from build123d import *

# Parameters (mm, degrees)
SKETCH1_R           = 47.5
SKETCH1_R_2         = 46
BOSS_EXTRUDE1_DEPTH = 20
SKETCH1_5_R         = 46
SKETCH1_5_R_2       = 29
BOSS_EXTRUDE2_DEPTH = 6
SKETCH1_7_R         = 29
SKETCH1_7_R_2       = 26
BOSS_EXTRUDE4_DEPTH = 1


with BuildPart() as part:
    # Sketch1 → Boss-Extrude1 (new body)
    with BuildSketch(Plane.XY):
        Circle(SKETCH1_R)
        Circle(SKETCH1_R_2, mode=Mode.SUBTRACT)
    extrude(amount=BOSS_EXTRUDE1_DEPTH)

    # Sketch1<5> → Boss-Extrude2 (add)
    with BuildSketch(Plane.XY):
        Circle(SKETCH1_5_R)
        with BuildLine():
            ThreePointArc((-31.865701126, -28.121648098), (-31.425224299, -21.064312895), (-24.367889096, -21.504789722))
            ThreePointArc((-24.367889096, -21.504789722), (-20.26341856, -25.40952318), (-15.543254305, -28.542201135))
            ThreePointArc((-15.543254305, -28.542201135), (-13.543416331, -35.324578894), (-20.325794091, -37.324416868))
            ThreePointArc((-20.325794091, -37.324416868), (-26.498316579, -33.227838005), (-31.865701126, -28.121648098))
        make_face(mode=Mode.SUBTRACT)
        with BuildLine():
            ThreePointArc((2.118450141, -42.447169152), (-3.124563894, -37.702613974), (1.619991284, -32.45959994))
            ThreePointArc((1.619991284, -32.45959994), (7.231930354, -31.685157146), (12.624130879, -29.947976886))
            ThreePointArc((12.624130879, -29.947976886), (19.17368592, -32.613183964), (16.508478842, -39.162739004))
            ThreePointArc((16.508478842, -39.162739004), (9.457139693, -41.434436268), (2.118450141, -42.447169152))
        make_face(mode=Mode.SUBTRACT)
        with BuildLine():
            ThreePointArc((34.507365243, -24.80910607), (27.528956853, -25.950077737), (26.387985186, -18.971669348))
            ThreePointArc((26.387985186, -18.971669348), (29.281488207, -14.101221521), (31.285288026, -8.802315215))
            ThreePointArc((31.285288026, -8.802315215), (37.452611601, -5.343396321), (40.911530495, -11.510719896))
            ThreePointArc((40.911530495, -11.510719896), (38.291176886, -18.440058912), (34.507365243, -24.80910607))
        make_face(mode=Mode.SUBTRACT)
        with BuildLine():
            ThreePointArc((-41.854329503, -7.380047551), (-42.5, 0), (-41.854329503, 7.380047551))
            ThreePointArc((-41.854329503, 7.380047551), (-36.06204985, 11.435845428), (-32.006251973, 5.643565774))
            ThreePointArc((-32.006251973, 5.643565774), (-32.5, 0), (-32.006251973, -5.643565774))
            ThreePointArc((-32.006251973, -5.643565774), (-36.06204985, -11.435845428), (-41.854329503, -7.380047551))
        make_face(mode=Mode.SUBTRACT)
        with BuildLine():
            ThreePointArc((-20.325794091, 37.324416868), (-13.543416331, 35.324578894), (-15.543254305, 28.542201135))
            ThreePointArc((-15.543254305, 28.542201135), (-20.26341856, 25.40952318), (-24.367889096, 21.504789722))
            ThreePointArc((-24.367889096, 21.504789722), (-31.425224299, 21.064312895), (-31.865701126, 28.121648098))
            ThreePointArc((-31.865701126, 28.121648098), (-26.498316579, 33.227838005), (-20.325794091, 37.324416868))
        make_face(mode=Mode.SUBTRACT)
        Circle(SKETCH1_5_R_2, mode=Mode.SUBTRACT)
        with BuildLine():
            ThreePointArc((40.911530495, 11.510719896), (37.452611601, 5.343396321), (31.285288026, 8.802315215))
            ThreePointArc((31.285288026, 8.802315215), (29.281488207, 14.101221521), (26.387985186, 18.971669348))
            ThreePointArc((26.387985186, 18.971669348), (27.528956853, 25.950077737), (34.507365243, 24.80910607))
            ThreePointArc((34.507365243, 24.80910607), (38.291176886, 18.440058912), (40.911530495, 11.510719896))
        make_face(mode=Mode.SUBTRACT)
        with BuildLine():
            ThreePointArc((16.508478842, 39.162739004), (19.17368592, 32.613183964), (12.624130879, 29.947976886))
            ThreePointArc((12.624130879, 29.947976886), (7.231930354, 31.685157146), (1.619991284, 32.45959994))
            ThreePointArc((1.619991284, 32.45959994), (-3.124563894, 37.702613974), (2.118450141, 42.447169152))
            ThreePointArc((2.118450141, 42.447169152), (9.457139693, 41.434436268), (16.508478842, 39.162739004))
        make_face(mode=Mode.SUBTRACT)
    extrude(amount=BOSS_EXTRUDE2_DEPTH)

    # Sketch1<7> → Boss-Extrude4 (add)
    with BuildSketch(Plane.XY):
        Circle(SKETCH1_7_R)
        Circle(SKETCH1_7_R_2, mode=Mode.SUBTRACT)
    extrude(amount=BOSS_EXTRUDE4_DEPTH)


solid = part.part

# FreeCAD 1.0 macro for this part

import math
import FreeCAD as App
import Part
import Sketcher
from FreeCAD import Vector
Q = App.Units.Quantity

doc = App.newDocument("Part")
body = doc.addObject("PartDesign::Body", "Body")

sketch1 = body.newObject("Sketcher::SketchObject", "Sketch")
sketch1.AttachmentSupport = (doc.getObject("XY_Plane"), [""])
sketch1.MapMode = "FlatFace"
sketch1.addGeometry([
    Part.Circle(Vector(0, 0, 0), Vector(0, 0, 1), 47.5),
    Part.Circle(Vector(0, 0, 0), Vector(0, 0, 1), 46),
], False)
sketch1.addConstraint([
    Sketcher.Constraint("Coincident", 0, 3, -1, 1),
    Sketcher.Constraint("Coincident", 1, 3, -1, 1),
    Sketcher.Constraint("Diameter", 0, Q("95 mm")),
    Sketcher.Constraint("Diameter", 1, Q("92 mm")),
])
pad1 = body.newObject("PartDesign::Pad", "Pad")
pad1.Profile = sketch1
pad1.Length = 20

sketch2 = body.newObject("Sketcher::SketchObject", "Sketch001")
sketch2.AttachmentSupport = (doc.getObject("XY_Plane"), [""])
sketch2.MapMode = "FlatFace"
sketch2.addGeometry([
    Part.Circle(Vector(0, 0, 0), Vector(0, 0, 1), 46),
    Part.ArcOfCircle(Part.Circle(Vector(0, 0, 0), Vector(0, 0, 1), 42.5), math.radians(-138.571429), math.radians(-118.571429)),
    Part.ArcOfCircle(Part.Circle(Vector(-28.116795, -24.813219, 0), Vector(0, 0, 1), 5), math.radians(41.428571), math.radians(221.428571)),
    Part.ArcOfCircle(Part.Circle(Vector(0, 0, 0), Vector(0, 0, 1), 32.5), math.radians(-138.571429), math.radians(-118.571429)),
    Part.ArcOfCircle(Part.Circle(Vector(-17.934524, -32.933309, 0), Vector(0, 0, 1), 5), math.radians(-118.571429), math.radians(61.428571)),
    Part.ArcOfCircle(Part.Circle(Vector(0, 0, 0), Vector(0, 0, 1), 42.5), math.radians(-87.142857), math.radians(-67.142857)),
    Part.ArcOfCircle(Part.Circle(Vector(1.869221, -37.453385, 0), Vector(0, 0, 1), 5), math.radians(92.857143), math.radians(272.857143)),
    Part.ArcOfCircle(Part.Circle(Vector(0, 0, 0), Vector(0, 0, 1), 32.5), math.radians(-87.142857), math.radians(-67.142857)),
    Part.ArcOfCircle(Part.Circle(Vector(14.566305, -34.555358, 0), Vector(0, 0, 1), 5), math.radians(-67.142857), math.radians(112.857143)),
    Part.ArcOfCircle(Part.Circle(Vector(0, 0, 0), Vector(0, 0, 1), 42.5), math.radians(-35.714286), math.radians(-15.714286)),
    Part.ArcOfCircle(Part.Circle(Vector(30.447675, -21.890388, 0), Vector(0, 0, 1), 5), math.radians(144.285714), math.radians(324.285714)),
    Part.ArcOfCircle(Part.Circle(Vector(0, 0, 0), Vector(0, 0, 1), 32.5), math.radians(-35.714286), math.radians(-15.714286)),
    Part.ArcOfCircle(Part.Circle(Vector(36.098409, -10.156518, 0), Vector(0, 0, 1), 5), math.radians(-15.714286), math.radians(164.285714)),
    Part.ArcOfCircle(Part.Circle(Vector(-36.930291, -6.511807, 0), Vector(0, 0, 1), 5), math.radians(-170), math.radians(10)),
    Part.ArcOfCircle(Part.Circle(Vector(0, 0, 0), Vector(0, 0, 1), 42.5), math.radians(170), math.radians(190)),
    Part.ArcOfCircle(Part.Circle(Vector(-36.930291, 6.511807, 0), Vector(0, 0, 1), 5), math.radians(-10), math.radians(170)),
    Part.ArcOfCircle(Part.Circle(Vector(0, 0, 0), Vector(0, 0, 1), 32.5), math.radians(170), math.radians(190)),
    Part.ArcOfCircle(Part.Circle(Vector(0, 0, 0), Vector(0, 0, 1), 42.5), math.radians(118.571429), math.radians(138.571429)),
    Part.ArcOfCircle(Part.Circle(Vector(-17.934524, 32.933309, 0), Vector(0, 0, 1), 5), math.radians(-61.428571), math.radians(118.571429)),
    Part.ArcOfCircle(Part.Circle(Vector(0, 0, 0), Vector(0, 0, 1), 32.5), math.radians(118.571429), math.radians(138.571429)),
    Part.ArcOfCircle(Part.Circle(Vector(-28.116795, 24.813219, 0), Vector(0, 0, 1), 5), math.radians(138.571429), math.radians(318.571429)),
    Part.Circle(Vector(0, 0, 0), Vector(0, 0, 1), 29),
    Part.ArcOfCircle(Part.Circle(Vector(0, 0, 0), Vector(0, 0, 1), 42.5), math.radians(15.714286), math.radians(35.714286)),
    Part.ArcOfCircle(Part.Circle(Vector(36.098409, 10.156518, 0), Vector(0, 0, 1), 5), math.radians(-164.285714), math.radians(15.714286)),
    Part.ArcOfCircle(Part.Circle(Vector(0, 0, 0), Vector(0, 0, 1), 32.5), math.radians(15.714286), math.radians(35.714286)),
    Part.ArcOfCircle(Part.Circle(Vector(30.447675, 21.890388, 0), Vector(0, 0, 1), 5), math.radians(35.714286), math.radians(215.714286)),
    Part.ArcOfCircle(Part.Circle(Vector(0, 0, 0), Vector(0, 0, 1), 42.5), math.radians(67.142857), math.radians(87.142857)),
    Part.ArcOfCircle(Part.Circle(Vector(14.566305, 34.555358, 0), Vector(0, 0, 1), 5), math.radians(-112.857143), math.radians(67.142857)),
    Part.ArcOfCircle(Part.Circle(Vector(0, 0, 0), Vector(0, 0, 1), 32.5), math.radians(67.142857), math.radians(87.142857)),
    Part.ArcOfCircle(Part.Circle(Vector(1.869221, 37.453385, 0), Vector(0, 0, 1), 5), math.radians(87.142857), math.radians(267.142857)),
], False)
sketch2.addConstraint([
    Sketcher.Constraint("Tangent", 1, 1, 2, 2),
    Sketcher.Constraint("Tangent", 2, 1, 3, 1),
    Sketcher.Constraint("Tangent", 3, 2, 4, 2),
    Sketcher.Constraint("Tangent", 4, 1, 1, 2),
    Sketcher.Constraint("Tangent", 5, 1, 6, 2),
    Sketcher.Constraint("Tangent", 6, 1, 7, 1),
    Sketcher.Constraint("Tangent", 7, 2, 8, 2),
    Sketcher.Constraint("Tangent", 8, 1, 5, 2),
    Sketcher.Constraint("Tangent", 9, 1, 10, 2),
    Sketcher.Constraint("Tangent", 10, 1, 11, 1),
    Sketcher.Constraint("Tangent", 11, 2, 12, 2),
    Sketcher.Constraint("Tangent", 12, 1, 9, 2),
    Sketcher.Constraint("Tangent", 13, 1, 14, 2),
    Sketcher.Constraint("Tangent", 14, 1, 15, 2),
    Sketcher.Constraint("Tangent", 15, 1, 16, 1),
    Sketcher.Constraint("Tangent", 16, 2, 13, 2),
    Sketcher.Constraint("Tangent", 17, 1, 18, 2),
    Sketcher.Constraint("Tangent", 18, 1, 19, 1),
    Sketcher.Constraint("Tangent", 19, 2, 20, 2),
    Sketcher.Constraint("Tangent", 20, 1, 17, 2),
    Sketcher.Constraint("Tangent", 22, 1, 23, 2),
    Sketcher.Constraint("Tangent", 23, 1, 24, 1),
    Sketcher.Constraint("Tangent", 24, 2, 25, 2),
    Sketcher.Constraint("Tangent", 25, 1, 22, 2),
    Sketcher.Constraint("Tangent", 26, 1, 27, 2),
    Sketcher.Constraint("Tangent", 27, 1, 28, 1),
    Sketcher.Constraint("Tangent", 28, 2, 29, 2),
    Sketcher.Constraint("Tangent", 29, 1, 26, 2),
    Sketcher.Constraint("Coincident", 0, 3, -1, 1),
    Sketcher.Constraint("Coincident", 1, 3, -1, 1),
    Sketcher.Constraint("Coincident", 3, 3, -1, 1),
    Sketcher.Constraint("Coincident", 5, 3, -1, 1),
    Sketcher.Constraint("Coincident", 7, 3, -1, 1),
    Sketcher.Constraint("Coincident", 9, 3, -1, 1),
    Sketcher.Constraint("Coincident", 11, 3, -1, 1),
    Sketcher.Constraint("Coincident", 14, 3, -1, 1),
    Sketcher.Constraint("Coincident", 16, 3, -1, 1),
    Sketcher.Constraint("Coincident", 17, 3, -1, 1),
    Sketcher.Constraint("Coincident", 19, 3, -1, 1),
    Sketcher.Constraint("Coincident", 21, 3, -1, 1),
    Sketcher.Constraint("Coincident", 22, 3, -1, 1),
    Sketcher.Constraint("Coincident", 24, 3, -1, 1),
    Sketcher.Constraint("Coincident", 26, 3, -1, 1),
    Sketcher.Constraint("Coincident", 28, 3, -1, 1),
    Sketcher.Constraint("Equal", 1, 5),
    Sketcher.Constraint("Equal", 4, 6),
    Sketcher.Constraint("Equal", 5, 9),
    Sketcher.Constraint("Equal", 8, 10),
    Sketcher.Constraint("Equal", 12, 13),
    Sketcher.Constraint("Equal", 9, 14),
    Sketcher.Constraint("Equal", 14, 17),
    Sketcher.Constraint("Equal", 15, 18),
    Sketcher.Constraint("Equal", 17, 22),
    Sketcher.Constraint("Equal", 20, 23),
    Sketcher.Constraint("Equal", 22, 26),
    Sketcher.Constraint("Equal", 25, 27),
    Sketcher.Constraint("Vertical", 13, 3, 15, 3),
    Sketcher.Constraint("Vertical", 4, 3, 18, 3),
    Sketcher.Constraint("Vertical", 2, 3, 20, 3),
    Sketcher.Constraint("Vertical", 12, 3, 23, 3),
    Sketcher.Constraint("Vertical", 10, 3, 25, 3),
    Sketcher.Constraint("Vertical", 8, 3, 27, 3),
    Sketcher.Constraint("Vertical", 6, 3, 29, 3),
    Sketcher.Constraint("Diameter", 0, Q("92 mm")),
    Sketcher.Constraint("Diameter", 21, Q("58 mm")),
    Sketcher.Constraint("Radius", 2, Q("5 mm")),
    Sketcher.Constraint("Radius", 1, Q("42.5 mm")),
    Sketcher.Constraint("DistanceX", 2, 3, 4, 1, Q("7.791001 mm")),
    Sketcher.Constraint("DistanceX", 1, 1, -1, 1, Q("31.865701 mm")),
    Sketcher.Constraint("DistanceY", 6, 1, -1, 1, Q("32.4596 mm")),
    Sketcher.Constraint("DistanceX", 13, 3, 2, 1, Q("12.562402 mm")),
    Sketcher.Constraint("DistanceX", -1, 1, 12, 3, Q("36.098409 mm")),
    Sketcher.Constraint("DistanceX", -1, 1, 7, 2, Q("12.624131 mm")),
    Sketcher.Constraint("DistanceY", 10, 1, -1, 1, Q("18.971669 mm")),
])
pad2 = body.newObject("PartDesign::Pad", "Pad001")
pad2.Profile = sketch2
pad2.Length = 6

sketch3 = body.newObject("Sketcher::SketchObject", "Sketch002")
sketch3.AttachmentSupport = (doc.getObject("XY_Plane"), [""])
sketch3.MapMode = "FlatFace"
sketch3.addGeometry([
    Part.Circle(Vector(0, 0, 0), Vector(0, 0, 1), 29),
    Part.Circle(Vector(0, 0, 0), Vector(0, 0, 1), 26),
], False)
sketch3.addConstraint([
    Sketcher.Constraint("Coincident", 0, 3, -1, 1),
    Sketcher.Constraint("Coincident", 1, 3, -1, 1),
    Sketcher.Constraint("Diameter", 0, Q("58 mm")),
    Sketcher.Constraint("Diameter", 1, Q("52 mm")),
])
pad3 = body.newObject("PartDesign::Pad", "Pad002")
pad3.Profile = sketch3
pad3.Length = 1

doc.recompute()
